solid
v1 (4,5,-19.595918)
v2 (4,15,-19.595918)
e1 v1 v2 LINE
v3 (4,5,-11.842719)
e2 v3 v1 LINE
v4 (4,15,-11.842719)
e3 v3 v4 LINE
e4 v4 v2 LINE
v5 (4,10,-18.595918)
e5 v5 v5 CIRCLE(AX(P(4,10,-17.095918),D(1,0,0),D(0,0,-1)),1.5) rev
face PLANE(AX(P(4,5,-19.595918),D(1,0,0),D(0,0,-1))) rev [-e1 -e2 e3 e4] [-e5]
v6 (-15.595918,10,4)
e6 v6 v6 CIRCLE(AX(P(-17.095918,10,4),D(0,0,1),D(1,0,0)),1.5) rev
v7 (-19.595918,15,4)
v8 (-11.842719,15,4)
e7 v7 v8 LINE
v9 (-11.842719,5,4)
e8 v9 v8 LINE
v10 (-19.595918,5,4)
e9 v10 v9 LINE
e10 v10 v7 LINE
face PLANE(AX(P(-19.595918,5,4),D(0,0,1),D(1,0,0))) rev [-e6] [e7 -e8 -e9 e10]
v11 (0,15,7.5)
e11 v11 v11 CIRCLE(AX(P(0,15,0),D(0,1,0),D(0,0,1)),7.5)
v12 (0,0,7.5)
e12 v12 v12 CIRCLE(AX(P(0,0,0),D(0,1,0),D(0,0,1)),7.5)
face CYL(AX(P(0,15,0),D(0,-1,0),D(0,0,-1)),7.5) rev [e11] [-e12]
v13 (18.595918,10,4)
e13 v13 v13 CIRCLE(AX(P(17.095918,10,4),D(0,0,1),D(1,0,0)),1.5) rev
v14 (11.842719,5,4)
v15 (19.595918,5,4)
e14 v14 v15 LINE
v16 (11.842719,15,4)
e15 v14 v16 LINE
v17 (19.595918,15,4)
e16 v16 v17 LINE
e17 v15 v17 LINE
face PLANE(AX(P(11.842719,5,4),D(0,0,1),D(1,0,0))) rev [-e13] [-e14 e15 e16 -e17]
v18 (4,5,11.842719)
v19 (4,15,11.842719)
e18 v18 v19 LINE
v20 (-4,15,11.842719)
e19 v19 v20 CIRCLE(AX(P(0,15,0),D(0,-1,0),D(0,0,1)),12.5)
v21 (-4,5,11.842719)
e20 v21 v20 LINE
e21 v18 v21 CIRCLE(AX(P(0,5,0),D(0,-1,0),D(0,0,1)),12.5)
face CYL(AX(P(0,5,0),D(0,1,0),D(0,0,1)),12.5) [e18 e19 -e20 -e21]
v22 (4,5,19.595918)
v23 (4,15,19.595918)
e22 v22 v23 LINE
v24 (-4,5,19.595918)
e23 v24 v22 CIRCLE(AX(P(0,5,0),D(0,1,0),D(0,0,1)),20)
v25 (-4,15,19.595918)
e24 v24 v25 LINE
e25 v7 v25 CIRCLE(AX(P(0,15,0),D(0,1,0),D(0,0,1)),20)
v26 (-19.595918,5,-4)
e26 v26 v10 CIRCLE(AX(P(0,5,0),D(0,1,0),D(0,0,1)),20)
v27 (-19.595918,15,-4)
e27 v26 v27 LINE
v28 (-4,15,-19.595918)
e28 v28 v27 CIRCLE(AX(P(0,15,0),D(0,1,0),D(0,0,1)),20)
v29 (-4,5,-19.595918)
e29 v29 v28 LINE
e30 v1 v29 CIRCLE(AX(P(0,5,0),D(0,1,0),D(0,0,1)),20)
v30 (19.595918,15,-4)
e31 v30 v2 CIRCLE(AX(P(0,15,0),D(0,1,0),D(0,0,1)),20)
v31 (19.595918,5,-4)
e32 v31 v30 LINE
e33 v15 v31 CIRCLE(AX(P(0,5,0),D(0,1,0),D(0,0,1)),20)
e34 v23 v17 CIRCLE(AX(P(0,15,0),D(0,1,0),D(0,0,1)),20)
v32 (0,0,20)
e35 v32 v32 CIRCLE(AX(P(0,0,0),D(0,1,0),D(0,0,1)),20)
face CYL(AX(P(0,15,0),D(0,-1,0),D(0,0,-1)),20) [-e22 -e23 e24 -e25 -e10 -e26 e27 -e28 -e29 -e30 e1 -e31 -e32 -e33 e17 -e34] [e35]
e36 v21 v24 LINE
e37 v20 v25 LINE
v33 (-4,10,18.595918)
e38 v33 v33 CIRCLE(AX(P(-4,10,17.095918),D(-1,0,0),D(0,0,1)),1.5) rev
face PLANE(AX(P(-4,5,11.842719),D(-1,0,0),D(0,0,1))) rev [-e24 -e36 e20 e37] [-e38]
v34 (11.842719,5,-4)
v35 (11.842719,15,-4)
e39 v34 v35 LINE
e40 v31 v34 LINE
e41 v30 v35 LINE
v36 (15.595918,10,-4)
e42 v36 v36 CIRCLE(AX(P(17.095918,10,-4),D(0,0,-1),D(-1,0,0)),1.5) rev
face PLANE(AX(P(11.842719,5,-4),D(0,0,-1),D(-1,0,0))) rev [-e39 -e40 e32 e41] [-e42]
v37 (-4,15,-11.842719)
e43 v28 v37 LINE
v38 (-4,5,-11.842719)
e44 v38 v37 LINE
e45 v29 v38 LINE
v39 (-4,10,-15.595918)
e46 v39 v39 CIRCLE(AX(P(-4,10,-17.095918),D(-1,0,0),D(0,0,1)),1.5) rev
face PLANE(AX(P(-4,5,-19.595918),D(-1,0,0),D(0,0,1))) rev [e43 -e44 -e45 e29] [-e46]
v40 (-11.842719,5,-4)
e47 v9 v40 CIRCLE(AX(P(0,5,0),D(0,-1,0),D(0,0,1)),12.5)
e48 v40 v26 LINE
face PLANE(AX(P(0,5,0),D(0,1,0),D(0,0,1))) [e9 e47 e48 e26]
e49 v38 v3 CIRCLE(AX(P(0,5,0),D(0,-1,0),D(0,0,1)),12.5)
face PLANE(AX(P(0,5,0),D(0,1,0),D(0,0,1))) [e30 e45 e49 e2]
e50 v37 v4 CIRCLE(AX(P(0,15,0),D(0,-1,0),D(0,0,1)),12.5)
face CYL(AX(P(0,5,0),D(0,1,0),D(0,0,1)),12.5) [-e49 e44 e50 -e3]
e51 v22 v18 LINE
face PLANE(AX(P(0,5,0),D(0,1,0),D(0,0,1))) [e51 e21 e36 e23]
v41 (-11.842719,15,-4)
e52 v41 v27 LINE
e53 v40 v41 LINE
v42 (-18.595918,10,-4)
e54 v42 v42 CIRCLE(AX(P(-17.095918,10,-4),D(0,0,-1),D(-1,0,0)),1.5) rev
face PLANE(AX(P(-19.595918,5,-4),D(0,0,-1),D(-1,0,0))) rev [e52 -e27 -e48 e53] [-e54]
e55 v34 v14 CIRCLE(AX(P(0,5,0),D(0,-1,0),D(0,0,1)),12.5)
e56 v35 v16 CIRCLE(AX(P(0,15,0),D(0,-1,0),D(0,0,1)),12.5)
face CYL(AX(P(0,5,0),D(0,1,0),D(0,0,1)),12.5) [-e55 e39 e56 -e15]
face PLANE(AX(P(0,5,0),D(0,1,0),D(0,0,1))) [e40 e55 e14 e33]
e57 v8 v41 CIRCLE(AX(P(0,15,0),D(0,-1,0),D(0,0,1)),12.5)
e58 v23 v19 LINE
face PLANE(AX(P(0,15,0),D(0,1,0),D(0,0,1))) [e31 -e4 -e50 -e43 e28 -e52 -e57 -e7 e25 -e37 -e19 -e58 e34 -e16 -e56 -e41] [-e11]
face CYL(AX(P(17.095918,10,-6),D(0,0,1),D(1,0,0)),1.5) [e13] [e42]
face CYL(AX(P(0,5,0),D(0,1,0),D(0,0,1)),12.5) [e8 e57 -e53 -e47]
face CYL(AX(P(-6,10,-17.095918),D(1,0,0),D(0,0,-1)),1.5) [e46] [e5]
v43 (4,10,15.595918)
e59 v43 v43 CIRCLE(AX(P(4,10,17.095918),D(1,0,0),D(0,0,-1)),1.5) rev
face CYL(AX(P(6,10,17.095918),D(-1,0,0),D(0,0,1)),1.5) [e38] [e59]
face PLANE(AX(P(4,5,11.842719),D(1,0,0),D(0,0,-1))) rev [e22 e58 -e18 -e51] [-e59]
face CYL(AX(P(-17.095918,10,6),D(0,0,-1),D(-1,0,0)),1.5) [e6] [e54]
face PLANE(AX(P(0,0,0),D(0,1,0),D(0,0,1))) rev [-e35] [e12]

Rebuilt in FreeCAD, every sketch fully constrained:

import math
import FreeCAD as App
import Part
import Sketcher

V = App.Vector
Q = App.Units.Quantity

doc = App.newDocument("Part")
body = doc.addObject("PartDesign::Body", "Body")

# Sketch on XZ plane
sketch1 = body.newObject("Sketcher::SketchObject", "Sketch")
sketch1.AttachmentSupport = (doc.getObject("XZ_Plane"), [""])
sketch1.MapMode = "FlatFace"
sketch1.addGeometry([
    Part.Circle(V(0, 0, 0), V(0, 0, 1), 20),
    Part.Circle(V(0, 0, 0), V(0, 0, 1), 7.5),
], False)
sketch1.addConstraint([
    Sketcher.Constraint("Coincident", 0, 3, -1, 1),
    Sketcher.Constraint("Coincident", 1, 3, -1, 1),
    Sketcher.Constraint("Diameter", 0, Q("40 mm")),
    Sketcher.Constraint("Diameter", 1, Q("15 mm")),
])
pad1 = body.newObject("PartDesign::Pad", "Pad")
pad1.Profile = sketch1
pad1.Length = 15
pad1.Reversed = True

# Sketch on XZ plane
sketch2 = body.newObject("Sketcher::SketchObject", "Sketch001")
sketch2.AttachmentSupport = (doc.getObject("XZ_Plane"), [""])
sketch2.MapMode = "FlatFace"
sketch2.AttachmentOffset = App.Placement(V(0, 0, -5), App.Rotation())
sketch2.addGeometry([
    Part.LineSegment(V(-19.595918, 4, 0), V(-11.842719, 4, 0)),  # 0
    Part.ArcOfCircle(Part.Circle(V(0, 0, 0), V(0, 0, 1), 12.5), math.radians(161.337075), math.radians(198.662925)),  # 1
    Part.LineSegment(V(-11.842719, -4, 0), V(-19.595918, -4, 0)),  # 2
    Part.ArcOfCircle(Part.Circle(V(0, 0, 0), V(0, 0, 1), 20), math.radians(168.463041), math.radians(191.536959)),  # 3
    Part.LineSegment(V(-4, -19.595918, 0), V(-4, -11.842719, 0)),  # 4
    Part.ArcOfCircle(Part.Circle(V(0, 0, 0), V(0, 0, 1), 12.5), math.radians(-108.662925), math.radians(-71.337075)),  # 5
    Part.LineSegment(V(4, -11.842719, 0), V(4, -19.595918, 0)),  # 6
    Part.ArcOfCircle(Part.Circle(V(0, 0, 0), V(0, 0, 1), 20), math.radians(-101.536959), math.radians(-78.463041)),  # 7
    Part.LineSegment(V(19.595918, -4, 0), V(11.842719, -4, 0)),  # 8
    Part.ArcOfCircle(Part.Circle(V(0, 0, 0), V(0, 0, 1), 12.5), math.radians(-18.662925), math.radians(18.662925)),  # 9
    Part.LineSegment(V(11.842719, 4, 0), V(19.595918, 4, 0)),  # 10
    Part.ArcOfCircle(Part.Circle(V(0, 0, 0), V(0, 0, 1), 20), math.radians(-11.536959), math.radians(11.536959)),  # 11
    Part.LineSegment(V(4, 19.595918, 0), V(4, 11.842719, 0)),  # 12
    Part.ArcOfCircle(Part.Circle(V(0, 0, 0), V(0, 0, 1), 12.5), math.radians(71.337075), math.radians(108.662925)),  # 13
    Part.LineSegment(V(-4, 11.842719, 0), V(-4, 19.595918, 0)),  # 14
    Part.ArcOfCircle(Part.Circle(V(0, 0, 0), V(0, 0, 1), 20), math.radians(78.463041), math.radians(101.536959)),  # 15
], False)
sketch2.addConstraint([
    Sketcher.Constraint("Coincident", 0, 2, 1, 1),
    Sketcher.Constraint("Coincident", 1, 2, 2, 1),
    Sketcher.Constraint("Coincident", 2, 2, 3, 2),
    Sketcher.Constraint("Coincident", 3, 1, 0, 1),
    Sketcher.Constraint("Coincident", 4, 2, 5, 1),
    Sketcher.Constraint("Coincident", 5, 2, 6, 1),
    Sketcher.Constraint("Coincident", 6, 2, 7, 2),
    Sketcher.Constraint("Coincident", 7, 1, 4, 1),
    Sketcher.Constraint("Coincident", 8, 2, 9, 1),
    Sketcher.Constraint("Coincident", 9, 2, 10, 1),
    Sketcher.Constraint("Coincident", 10, 2, 11, 2),
    Sketcher.Constraint("Coincident", 11, 1, 8, 1),
    Sketcher.Constraint("Coincident", 12, 2, 13, 1),
    Sketcher.Constraint("Coincident", 13, 2, 14, 1),
    Sketcher.Constraint("Coincident", 14, 2, 15, 2),
    Sketcher.Constraint("Coincident", 15, 1, 12, 1),
    Sketcher.Constraint("Horizontal", 0),
    Sketcher.Constraint("Horizontal", 2),
    Sketcher.Constraint("Vertical", 4),
    Sketcher.Constraint("Vertical", 6),
    Sketcher.Constraint("Horizontal", 8),
    Sketcher.Constraint("Horizontal", 10),
    Sketcher.Constraint("Vertical", 12),
    Sketcher.Constraint("Vertical", 14),
    Sketcher.Constraint("Coincident", 1, 3, -1, 1),
    Sketcher.Constraint("Coincident", 3, 3, -1, 1),
    Sketcher.Constraint("Coincident", 5, 3, -1, 1),
    Sketcher.Constraint("Coincident", 7, 3, -1, 1),
    Sketcher.Constraint("Coincident", 9, 3, -1, 1),
    Sketcher.Constraint("Coincident", 11, 3, -1, 1),
    Sketcher.Constraint("Coincident", 13, 3, -1, 1),
    Sketcher.Constraint("Coincident", 15, 3, -1, 1),
    Sketcher.Constraint("Equal", 1, 5),
    Sketcher.Constraint("Equal", 3, 7),
    Sketcher.Constraint("Equal", 5, 9),
    Sketcher.Constraint("Equal", 7, 11),
    Sketcher.Constraint("Equal", 9, 13),
    Sketcher.Constraint("Equal", 11, 15),
    Sketcher.Constraint("Horizontal", 4, 2, 5, 2),
    Sketcher.Constraint("Horizontal", 2, 2, 8, 2),
    Sketcher.Constraint("Horizontal", 3, 1, 9, 2),
    Sketcher.Constraint("Horizontal", 12, 2, 13, 2),
    Sketcher.Constraint("Vertical", 0, 2, 1, 2),
    Sketcher.Constraint("Vertical", 6, 2, 12, 2),
    Sketcher.Constraint("Equal", 10, 4),
    Sketcher.Constraint("Radius", 3, Q("20 mm")),
    Sketcher.Constraint("Radius", 1, Q("12.5 mm")),
    Sketcher.Constraint("DistanceY", -1, 1, 0, 2, Q("4 mm")),
])
pocket1 = body.newObject("PartDesign::Pocket", "Pocket")
pocket1.Profile = sketch2
pocket1.Length = 10

# Sketch on XY plane
sketch3 = body.newObject("Sketcher::SketchObject", "Sketch002")
sketch3.AttachmentSupport = (doc.getObject("XY_Plane"), [""])
sketch3.MapMode = "FlatFace"
sketch3.AttachmentOffset = App.Placement(V(0, 0, 4), App.Rotation())
sketch3.addGeometry(Part.Circle(V(17.095918, 10, 0), V(0, 0, 1), 1.5), False)
sketch3.addConstraint([
    Sketcher.Constraint("Diameter", 0, Q("3 mm")),
    Sketcher.Constraint("DistanceY", -1, 1, 0, 3, Q("10 mm")),
    Sketcher.Constraint("DistanceX", -1, 1, 0, 3, Q("17.095918 mm")),
])
pad2 = body.newObject("PartDesign::Pad", "Pad001")
pad2.Profile = sketch3
pad2.Length = 10
pad2.Reversed = True
doc.recompute()

polarpattern = body.newObject("PartDesign::PolarPattern", "PolarPattern")
polarpattern.Originals = [pad2]
polarpattern.Axis = (doc.getObject("Y_Axis"), [""])
polarpattern.Angle = 360
polarpattern.Occurrences = 4
body.Tip = polarpattern

doc.recompute()
